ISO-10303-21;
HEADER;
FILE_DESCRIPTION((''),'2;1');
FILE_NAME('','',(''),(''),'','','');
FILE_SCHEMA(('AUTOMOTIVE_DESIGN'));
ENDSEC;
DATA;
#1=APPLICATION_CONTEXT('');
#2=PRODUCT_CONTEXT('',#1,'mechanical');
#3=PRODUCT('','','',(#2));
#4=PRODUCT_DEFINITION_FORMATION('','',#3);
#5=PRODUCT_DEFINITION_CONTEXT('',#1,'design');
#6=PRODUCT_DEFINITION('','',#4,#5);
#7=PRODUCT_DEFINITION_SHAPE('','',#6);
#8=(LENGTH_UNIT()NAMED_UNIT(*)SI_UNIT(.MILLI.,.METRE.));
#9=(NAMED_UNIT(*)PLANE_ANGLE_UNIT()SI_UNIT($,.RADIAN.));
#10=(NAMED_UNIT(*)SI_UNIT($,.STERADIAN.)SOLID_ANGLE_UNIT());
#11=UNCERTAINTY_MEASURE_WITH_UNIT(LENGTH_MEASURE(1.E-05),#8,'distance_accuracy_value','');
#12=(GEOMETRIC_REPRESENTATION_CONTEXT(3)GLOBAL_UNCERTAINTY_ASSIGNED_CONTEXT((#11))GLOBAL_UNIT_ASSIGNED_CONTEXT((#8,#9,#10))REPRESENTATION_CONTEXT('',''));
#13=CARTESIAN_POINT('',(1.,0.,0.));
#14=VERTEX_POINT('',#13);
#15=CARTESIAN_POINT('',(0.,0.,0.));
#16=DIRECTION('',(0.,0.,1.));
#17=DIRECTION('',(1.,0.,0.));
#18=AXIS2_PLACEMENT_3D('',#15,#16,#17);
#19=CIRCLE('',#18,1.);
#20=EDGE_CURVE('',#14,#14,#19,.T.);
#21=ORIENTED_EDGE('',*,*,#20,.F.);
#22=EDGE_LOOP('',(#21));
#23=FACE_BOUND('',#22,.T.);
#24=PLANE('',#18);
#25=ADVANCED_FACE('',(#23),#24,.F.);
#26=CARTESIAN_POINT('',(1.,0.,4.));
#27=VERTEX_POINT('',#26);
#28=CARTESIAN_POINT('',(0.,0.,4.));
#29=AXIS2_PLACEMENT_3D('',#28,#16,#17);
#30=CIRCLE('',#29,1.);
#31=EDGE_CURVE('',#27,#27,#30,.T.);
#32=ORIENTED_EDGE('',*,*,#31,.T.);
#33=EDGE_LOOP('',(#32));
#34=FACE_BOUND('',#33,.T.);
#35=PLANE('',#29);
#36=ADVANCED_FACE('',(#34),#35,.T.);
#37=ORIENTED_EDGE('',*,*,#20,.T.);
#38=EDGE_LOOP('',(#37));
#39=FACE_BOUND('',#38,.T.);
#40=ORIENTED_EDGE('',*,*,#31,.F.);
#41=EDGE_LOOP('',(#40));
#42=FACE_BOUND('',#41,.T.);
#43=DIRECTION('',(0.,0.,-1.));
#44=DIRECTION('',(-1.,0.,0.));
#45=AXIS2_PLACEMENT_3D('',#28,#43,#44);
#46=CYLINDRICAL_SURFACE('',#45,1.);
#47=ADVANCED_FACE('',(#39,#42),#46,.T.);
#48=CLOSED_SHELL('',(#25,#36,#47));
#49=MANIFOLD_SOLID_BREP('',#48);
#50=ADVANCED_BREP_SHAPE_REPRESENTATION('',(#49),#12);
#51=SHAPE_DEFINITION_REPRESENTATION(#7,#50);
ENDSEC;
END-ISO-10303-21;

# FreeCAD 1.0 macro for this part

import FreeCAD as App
import Part
import Sketcher
from FreeCAD import Vector
Q = App.Units.Quantity

doc = App.newDocument("Part")
body = doc.addObject("PartDesign::Body", "Body")

# Sketch on XY plane
sketch1 = doc.addObject("Sketcher::SketchObject", "Sketch")
body.addObject(sketch1)
sketch1.AttachmentSupport = (doc.XY_Plane, [""])
sketch1.MapMode = "FlatFace"
sketch1.addGeometry(Part.Circle(Vector(0, 0, 0), Vector(0, 0, 1), 1), False)
sketch1.addConstraint(Sketcher.Constraint("Coincident", 0, 3, -1, 1))
sketch1.addConstraint(Sketcher.Constraint("Diameter", 0, Q("2 mm")))
pad1 = doc.addObject("PartDesign::Pad", "Pad")
body.addObject(pad1)
pad1.Profile = sketch1
pad1.Length = 4

doc.recompute()
